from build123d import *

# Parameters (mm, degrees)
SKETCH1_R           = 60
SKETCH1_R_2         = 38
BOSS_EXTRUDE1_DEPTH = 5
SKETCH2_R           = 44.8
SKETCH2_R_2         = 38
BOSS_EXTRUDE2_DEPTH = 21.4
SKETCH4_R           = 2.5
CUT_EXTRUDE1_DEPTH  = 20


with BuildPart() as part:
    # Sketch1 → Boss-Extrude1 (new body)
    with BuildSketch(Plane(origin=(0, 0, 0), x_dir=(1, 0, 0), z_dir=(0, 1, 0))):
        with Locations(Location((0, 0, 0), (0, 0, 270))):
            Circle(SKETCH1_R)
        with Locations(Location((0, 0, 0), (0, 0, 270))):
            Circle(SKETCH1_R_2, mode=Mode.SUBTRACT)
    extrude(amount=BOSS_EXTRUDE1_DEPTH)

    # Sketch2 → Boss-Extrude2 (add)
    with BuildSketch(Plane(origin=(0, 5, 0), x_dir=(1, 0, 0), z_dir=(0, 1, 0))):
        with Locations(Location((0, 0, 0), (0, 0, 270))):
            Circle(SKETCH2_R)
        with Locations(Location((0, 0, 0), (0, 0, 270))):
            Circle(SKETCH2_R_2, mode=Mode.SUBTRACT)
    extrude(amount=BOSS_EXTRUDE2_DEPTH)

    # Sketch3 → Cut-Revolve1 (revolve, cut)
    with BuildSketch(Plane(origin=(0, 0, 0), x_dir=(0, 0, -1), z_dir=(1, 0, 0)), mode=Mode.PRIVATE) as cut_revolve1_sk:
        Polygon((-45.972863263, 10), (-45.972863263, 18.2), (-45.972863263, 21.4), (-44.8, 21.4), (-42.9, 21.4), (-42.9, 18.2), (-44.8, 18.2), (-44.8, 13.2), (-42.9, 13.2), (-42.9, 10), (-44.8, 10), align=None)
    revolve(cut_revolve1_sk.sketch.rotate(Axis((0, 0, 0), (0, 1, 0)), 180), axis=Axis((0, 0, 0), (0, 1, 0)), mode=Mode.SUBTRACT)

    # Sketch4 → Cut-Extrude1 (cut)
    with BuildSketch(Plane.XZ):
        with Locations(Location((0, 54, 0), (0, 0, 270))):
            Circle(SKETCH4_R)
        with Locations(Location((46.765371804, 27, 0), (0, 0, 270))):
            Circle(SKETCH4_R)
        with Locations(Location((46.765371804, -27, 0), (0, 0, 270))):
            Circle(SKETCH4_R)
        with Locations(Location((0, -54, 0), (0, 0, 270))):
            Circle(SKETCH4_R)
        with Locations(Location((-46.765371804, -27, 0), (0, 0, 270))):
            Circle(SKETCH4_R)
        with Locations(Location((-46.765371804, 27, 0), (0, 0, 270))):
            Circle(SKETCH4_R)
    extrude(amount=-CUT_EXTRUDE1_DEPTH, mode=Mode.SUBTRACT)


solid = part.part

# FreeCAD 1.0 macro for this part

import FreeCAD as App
import Part
import Sketcher
from FreeCAD import Vector
Q = App.Units.Quantity

doc = App.newDocument("Part")
body = doc.addObject("PartDesign::Body", "Body")

# Sketch on XZ plane
sketch1 = body.newObject("Sketcher::SketchObject", "Sketch")
sketch1.AttachmentSupport = (doc.getObject("XZ_Plane"), [""])
sketch1.MapMode = "FlatFace"
sketch1.addGeometry([
    Part.Circle(Vector(0, 0, 0), Vector(0, 0, 1), 60),
    Part.Circle(Vector(0, 0, 0), Vector(0, 0, 1), 38),
], False)
sketch1.addConstraint([
    Sketcher.Constraint("Coincident", 0, 3, -1, 1),
    Sketcher.Constraint("Coincident", 1, 3, -1, 1),
    Sketcher.Constraint("Diameter", 0, Q("120 mm")),
    Sketcher.Constraint("Diameter", 1, Q("76 mm")),
])
pad1 = body.newObject("PartDesign::Pad", "Pad")
pad1.Profile = sketch1
pad1.Length = 5
pad1.Reversed = True

# Sketch on XZ plane
sketch2 = body.newObject("Sketcher::SketchObject", "Sketch001")
sketch2.AttachmentSupport = (doc.getObject("XZ_Plane"), [""])
sketch2.MapMode = "FlatFace"
sketch2.AttachmentOffset = App.Placement(Vector(0, 0, -5), App.Rotation())
sketch2.addGeometry([
    Part.Circle(Vector(0, 0, 0), Vector(0, 0, 1), 45),
    Part.Circle(Vector(0, 0, 0), Vector(0, 0, 1), 38),
], False)
sketch2.addConstraint([
    Sketcher.Constraint("Coincident", 0, 3, -1, 1),
    Sketcher.Constraint("Coincident", 1, 3, -1, 1),
    Sketcher.Constraint("Diameter", 1, Q("76 mm")),
    Sketcher.Constraint("Diameter", 0, Q("89.6 mm")),
])
pad2 = body.newObject("PartDesign::Pad", "Pad001")
pad2.Profile = sketch2
pad2.Length = 21.4
pad2.Reversed = True

# Sketch on YZ plane
sketch3 = body.newObject("Sketcher::SketchObject", "Sketch002")
sketch3.AttachmentSupport = (doc.getObject("YZ_Plane"), [""])
sketch3.MapMode = "FlatFace"
sketch3.addGeometry([
    Part.LineSegment(Vector(21.4, 46, 0), Vector(10, 46, 0)),  # 0
    Part.LineSegment(Vector(10, 46, 0), Vector(10, 42.9, 0)),  # 1
    Part.LineSegment(Vector(10, 42.9, 0), Vector(13.2, 42.9, 0)),  # 2
    Part.LineSegment(Vector(13.2, 42.9, 0), Vector(13.2, 44.8, 0)),  # 3
    Part.LineSegment(Vector(13.2, 44.8, 0), Vector(18.2, 44.8, 0)),  # 4
    Part.LineSegment(Vector(18.2, 44.8, 0), Vector(18.2, 42.9, 0)),  # 5
    Part.LineSegment(Vector(18.2, 42.9, 0), Vector(21.4, 42.9, 0)),  # 6
    Part.LineSegment(Vector(21.4, 42.9, 0), Vector(21.4, 46, 0)),  # 7
], False)
sketch3.addConstraint([
    Sketcher.Constraint("Coincident", 0, 2, 1, 1),
    Sketcher.Constraint("Coincident", 1, 2, 2, 1),
    Sketcher.Constraint("Coincident", 2, 2, 3, 1),
    Sketcher.Constraint("Coincident", 3, 2, 4, 1),
    Sketcher.Constraint("Coincident", 4, 2, 5, 1),
    Sketcher.Constraint("Coincident", 5, 2, 6, 1),
    Sketcher.Constraint("Coincident", 6, 2, 7, 1),
    Sketcher.Constraint("Coincident", 7, 2, 0, 1),
    Sketcher.Constraint("Horizontal", 0),
    Sketcher.Constraint("Vertical", 1),
    Sketcher.Constraint("Horizontal", 2),
    Sketcher.Constraint("Vertical", 3),
    Sketcher.Constraint("Horizontal", 4),
    Sketcher.Constraint("Vertical", 5),
    Sketcher.Constraint("Horizontal", 6),
    Sketcher.Constraint("Vertical", 7),
    Sketcher.Constraint("Horizontal", 2, 2, 5, 2),
    Sketcher.Constraint("Equal", 2, 6),
    Sketcher.Constraint("DistanceX", 4, 1, 4, 2, Q("5 mm")),
    Sketcher.Constraint("DistanceX", 0, 2, 0, 1, Q("11.4 mm")),
    Sketcher.Constraint("DistanceY", 3, 1, 3, 2, Q("1.9 mm")),
    Sketcher.Constraint("DistanceX", -1, 1, 0, 2, Q("10 mm")),
    Sketcher.Constraint("DistanceY", -1, 1, 1, 2, Q("42.9 mm")),
    Sketcher.Constraint("DistanceY", 1, 2, 1, 1, Q("3.072863 mm")),
])
groove = body.newObject("PartDesign::Groove", "Groove")
groove.Profile = sketch3
groove.ReferenceAxis = (sketch3, ["H_Axis"])
groove.Angle = 360

# Sketch on XZ plane
sketch4 = body.newObject("Sketcher::SketchObject", "Sketch003")
sketch4.AttachmentSupport = (doc.getObject("XZ_Plane"), [""])
sketch4.MapMode = "FlatFace"
sketch4.addGeometry([
    Part.Circle(Vector(0, 54, 0), Vector(0, 0, 1), 2.5),  # 0
    Part.Circle(Vector(46.8, 27, 0), Vector(0, 0, 1), 2.5),  # 1
    Part.Circle(Vector(46.8, -27, 0), Vector(0, 0, 1), 2.5),  # 2
    Part.Circle(Vector(0, -54, 0), Vector(0, 0, 1), 2.5),  # 3
    Part.Circle(Vector(-46.8, -27, 0), Vector(0, 0, 1), 2.5),  # 4
    Part.Circle(Vector(-46.8, 27, 0), Vector(0, 0, 1), 2.5),  # 5
], False)
sketch4.addConstraint([
    Sketcher.Constraint("Equal", 0, 1),
    Sketcher.Constraint("Equal", 1, 2),
    Sketcher.Constraint("Equal", 2, 3),
    Sketcher.Constraint("Equal", 3, 4),
    Sketcher.Constraint("Equal", 4, 5),
    Sketcher.Constraint("Symmetric", 0, 3, 3, 3, -1, 1),
    Sketcher.Constraint("Symmetric", 1, 3, 4, 3, -1, 1),
    Sketcher.Constraint("Symmetric", 2, 3, 5, 3, -1, 1),
    Sketcher.Constraint("Symmetric", 2, 3, 4, 3, -2),
    Sketcher.Constraint("PointOnObject", 0, 3, -2),
    Sketcher.Constraint("Diameter", 0, Q("5 mm")),
    Sketcher.Constraint("DistanceY", -1, 1, 0, 3, Q("54 mm")),
    Sketcher.Constraint("DistanceY", -1, 1, 1, 3, Q("27 mm")),
    Sketcher.Constraint("DistanceX", -1, 1, 1, 3, Q("46.765372 mm")),
])
pocket1 = body.newObject("PartDesign::Pocket", "Pocket")
pocket1.Profile = sketch4
pocket1.Length = 20

doc.recompute()
